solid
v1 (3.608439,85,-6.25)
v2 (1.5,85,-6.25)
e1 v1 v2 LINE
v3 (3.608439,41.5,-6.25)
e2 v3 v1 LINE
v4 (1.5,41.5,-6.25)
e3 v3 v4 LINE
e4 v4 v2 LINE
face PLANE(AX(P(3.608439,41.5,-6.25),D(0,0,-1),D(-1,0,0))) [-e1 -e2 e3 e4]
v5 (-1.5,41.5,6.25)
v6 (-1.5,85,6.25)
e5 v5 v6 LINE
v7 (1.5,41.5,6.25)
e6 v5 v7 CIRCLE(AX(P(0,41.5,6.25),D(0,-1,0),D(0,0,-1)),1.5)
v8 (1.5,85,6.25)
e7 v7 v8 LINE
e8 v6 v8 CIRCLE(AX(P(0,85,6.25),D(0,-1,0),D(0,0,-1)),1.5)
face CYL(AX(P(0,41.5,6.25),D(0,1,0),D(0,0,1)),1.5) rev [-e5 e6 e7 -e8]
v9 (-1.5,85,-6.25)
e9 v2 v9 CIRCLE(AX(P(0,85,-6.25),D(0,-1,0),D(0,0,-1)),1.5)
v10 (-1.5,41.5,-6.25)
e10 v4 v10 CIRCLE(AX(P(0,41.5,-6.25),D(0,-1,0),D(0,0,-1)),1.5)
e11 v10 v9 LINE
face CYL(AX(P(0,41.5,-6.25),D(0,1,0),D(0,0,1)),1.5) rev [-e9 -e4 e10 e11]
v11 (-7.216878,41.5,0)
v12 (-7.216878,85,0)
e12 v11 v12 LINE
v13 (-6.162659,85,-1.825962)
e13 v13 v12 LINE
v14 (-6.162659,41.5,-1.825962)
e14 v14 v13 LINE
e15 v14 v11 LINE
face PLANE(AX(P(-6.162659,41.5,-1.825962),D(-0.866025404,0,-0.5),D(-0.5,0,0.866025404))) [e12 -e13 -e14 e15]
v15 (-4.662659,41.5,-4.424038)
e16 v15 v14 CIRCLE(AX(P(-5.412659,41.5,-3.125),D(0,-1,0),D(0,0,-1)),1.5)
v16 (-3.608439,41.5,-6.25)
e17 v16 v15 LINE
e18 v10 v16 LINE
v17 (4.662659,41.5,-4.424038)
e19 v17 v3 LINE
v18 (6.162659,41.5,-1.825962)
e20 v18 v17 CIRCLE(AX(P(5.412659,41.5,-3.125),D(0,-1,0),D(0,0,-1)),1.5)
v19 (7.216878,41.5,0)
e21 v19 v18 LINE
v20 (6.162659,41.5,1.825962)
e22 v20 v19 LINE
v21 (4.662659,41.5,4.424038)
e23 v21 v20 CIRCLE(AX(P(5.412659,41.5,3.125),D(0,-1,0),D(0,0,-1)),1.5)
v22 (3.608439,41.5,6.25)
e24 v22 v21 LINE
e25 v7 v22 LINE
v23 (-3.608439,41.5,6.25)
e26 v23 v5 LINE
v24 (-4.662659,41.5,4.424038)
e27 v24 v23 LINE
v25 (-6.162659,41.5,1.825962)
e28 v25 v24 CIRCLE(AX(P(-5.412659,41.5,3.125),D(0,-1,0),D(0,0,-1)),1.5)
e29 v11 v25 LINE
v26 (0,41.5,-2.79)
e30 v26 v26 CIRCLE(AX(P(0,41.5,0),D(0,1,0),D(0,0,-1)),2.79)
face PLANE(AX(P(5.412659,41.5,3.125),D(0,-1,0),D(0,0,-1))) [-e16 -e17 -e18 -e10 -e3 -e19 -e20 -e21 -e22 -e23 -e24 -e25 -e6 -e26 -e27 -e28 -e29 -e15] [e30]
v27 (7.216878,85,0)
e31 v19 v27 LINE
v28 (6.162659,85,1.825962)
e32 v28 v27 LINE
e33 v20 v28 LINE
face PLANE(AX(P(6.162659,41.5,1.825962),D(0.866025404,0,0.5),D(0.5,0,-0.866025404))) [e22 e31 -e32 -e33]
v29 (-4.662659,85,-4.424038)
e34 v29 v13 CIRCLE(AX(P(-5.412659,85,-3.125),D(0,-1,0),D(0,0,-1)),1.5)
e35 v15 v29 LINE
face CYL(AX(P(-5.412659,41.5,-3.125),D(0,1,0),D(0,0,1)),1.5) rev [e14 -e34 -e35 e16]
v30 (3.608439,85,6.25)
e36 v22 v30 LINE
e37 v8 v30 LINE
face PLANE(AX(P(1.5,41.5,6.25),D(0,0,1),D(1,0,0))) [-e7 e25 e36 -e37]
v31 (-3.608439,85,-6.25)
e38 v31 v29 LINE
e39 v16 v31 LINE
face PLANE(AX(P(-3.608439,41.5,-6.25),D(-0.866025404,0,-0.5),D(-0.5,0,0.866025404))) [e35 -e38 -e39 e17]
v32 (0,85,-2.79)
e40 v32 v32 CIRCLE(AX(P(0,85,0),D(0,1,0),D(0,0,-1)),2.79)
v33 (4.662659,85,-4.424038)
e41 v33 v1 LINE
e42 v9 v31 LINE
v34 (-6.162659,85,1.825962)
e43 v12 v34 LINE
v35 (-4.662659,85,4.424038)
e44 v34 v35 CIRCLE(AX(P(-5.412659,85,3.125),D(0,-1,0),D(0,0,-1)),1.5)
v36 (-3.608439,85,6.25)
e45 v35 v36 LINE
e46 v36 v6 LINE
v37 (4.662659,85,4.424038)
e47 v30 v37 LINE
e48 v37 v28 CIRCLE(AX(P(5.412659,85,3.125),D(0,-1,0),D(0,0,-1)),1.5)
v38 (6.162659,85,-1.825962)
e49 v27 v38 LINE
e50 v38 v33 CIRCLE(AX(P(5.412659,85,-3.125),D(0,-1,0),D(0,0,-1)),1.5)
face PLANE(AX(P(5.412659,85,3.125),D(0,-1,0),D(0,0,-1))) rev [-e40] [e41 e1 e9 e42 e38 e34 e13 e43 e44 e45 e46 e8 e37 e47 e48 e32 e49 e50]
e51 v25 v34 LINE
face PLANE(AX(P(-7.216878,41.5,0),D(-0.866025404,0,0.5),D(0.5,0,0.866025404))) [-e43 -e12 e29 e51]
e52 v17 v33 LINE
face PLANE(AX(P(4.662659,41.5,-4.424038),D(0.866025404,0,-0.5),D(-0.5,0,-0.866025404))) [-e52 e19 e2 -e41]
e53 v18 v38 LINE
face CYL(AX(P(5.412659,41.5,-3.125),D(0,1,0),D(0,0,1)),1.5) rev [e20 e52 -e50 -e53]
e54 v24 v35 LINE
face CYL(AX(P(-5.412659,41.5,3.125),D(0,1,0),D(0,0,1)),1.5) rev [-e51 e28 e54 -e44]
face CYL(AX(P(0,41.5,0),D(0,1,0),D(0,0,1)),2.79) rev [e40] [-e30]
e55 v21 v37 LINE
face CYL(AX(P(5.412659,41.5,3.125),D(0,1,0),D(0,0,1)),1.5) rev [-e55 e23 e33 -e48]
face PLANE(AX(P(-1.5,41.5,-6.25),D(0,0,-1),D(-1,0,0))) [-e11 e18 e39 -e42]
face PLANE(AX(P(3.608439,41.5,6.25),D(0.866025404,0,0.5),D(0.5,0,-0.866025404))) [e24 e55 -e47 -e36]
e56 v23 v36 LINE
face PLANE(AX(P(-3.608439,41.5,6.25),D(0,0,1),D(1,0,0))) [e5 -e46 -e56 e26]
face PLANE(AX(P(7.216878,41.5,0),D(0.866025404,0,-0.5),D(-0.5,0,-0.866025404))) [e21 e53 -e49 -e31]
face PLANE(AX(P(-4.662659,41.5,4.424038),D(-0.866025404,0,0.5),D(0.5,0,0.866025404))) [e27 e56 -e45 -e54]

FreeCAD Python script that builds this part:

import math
import FreeCAD as App
import Part
import Sketcher

V = App.Vector
Q = App.Units.Quantity

doc = App.newDocument("Part")
body = doc.addObject("PartDesign::Body", "Body")

# Sketch on XZ plane
sketch1 = body.newObject("Sketcher::SketchObject", "Sketch")
sketch1.AttachmentSupport = (doc.getObject("XZ_Plane"), [""])
sketch1.MapMode = "FlatFace"
sketch1.AttachmentOffset = App.Placement(V(0, 0, -85), App.Rotation())
sketch1.addGeometry([
    Part.LineSegment(V(6.162659, 1.825962, 0), V(7.216878, 0, 0)),  # 0
    Part.LineSegment(V(7.216878, 0, 0), V(6.162659, -1.825962, 0)),  # 1
    Part.ArcOfCircle(Part.Circle(V(5.412659, -3.125, 0), V(0, 0, 1), 1.5), math.radians(60), math.radians(240)),  # 2
    Part.LineSegment(V(4.662659, -4.424038, 0), V(3.608439, -6.25, 0)),  # 3
    Part.LineSegment(V(3.608439, -6.25, 0), V(1.5, -6.25, 0)),  # 4
    Part.ArcOfCircle(Part.Circle(V(0, -6.25, 0), V(0, 0, 1), 1.5), math.radians(0), math.radians(180)),  # 5
    Part.LineSegment(V(-1.5, -6.25, 0), V(-3.608439, -6.25, 0)),  # 6
    Part.LineSegment(V(-3.608439, -6.25, 0), V(-4.662659, -4.424038, 0)),  # 7
    Part.ArcOfCircle(Part.Circle(V(-5.412659, -3.125, 0), V(0, 0, 1), 1.5), math.radians(-60), math.radians(120)),  # 8
    Part.LineSegment(V(-6.162659, -1.825962, 0), V(-7.216878, 0, 0)),  # 9
    Part.LineSegment(V(-7.216878, 0, 0), V(-6.162659, 1.825962, 0)),  # 10
    Part.ArcOfCircle(Part.Circle(V(-5.412659, 3.125, 0), V(0, 0, 1), 1.5), math.radians(-120), math.radians(60)),  # 11
    Part.LineSegment(V(-4.662659, 4.424038, 0), V(-3.608439, 6.25, 0)),  # 12
    Part.LineSegment(V(-3.608439, 6.25, 0), V(-1.5, 6.25, 0)),  # 13
    Part.ArcOfCircle(Part.Circle(V(0, 6.25, 0), V(0, 0, 1), 1.5), math.radians(180), math.radians(360)),  # 14
    Part.LineSegment(V(1.5, 6.25, 0), V(3.608439, 6.25, 0)),  # 15
    Part.LineSegment(V(3.608439, 6.25, 0), V(4.662659, 4.424038, 0)),  # 16
    Part.ArcOfCircle(Part.Circle(V(5.412659, 3.125, 0), V(0, 0, 1), 1.5), math.radians(120), math.radians(300)),  # 17
    Part.Circle(V(0, 0, 0), V(0, 0, 1), 2.79),  # 18
], False)
sketch1.addConstraint([
    Sketcher.Constraint("Coincident", 0, 2, 1, 1),
    Sketcher.Constraint("Coincident", 1, 2, 2, 1),
    Sketcher.Constraint("Coincident", 2, 2, 3, 1),
    Sketcher.Constraint("Coincident", 3, 2, 4, 1),
    Sketcher.Constraint("Coincident", 4, 2, 5, 1),
    Sketcher.Constraint("Coincident", 5, 2, 6, 1),
    Sketcher.Constraint("Coincident", 6, 2, 7, 1),
    Sketcher.Constraint("Coincident", 7, 2, 8, 1),
    Sketcher.Constraint("Coincident", 8, 2, 9, 1),
    Sketcher.Constraint("Coincident", 9, 2, 10, 1),
    Sketcher.Constraint("Coincident", 10, 2, 11, 1),
    Sketcher.Constraint("Coincident", 11, 2, 12, 1),
    Sketcher.Constraint("Coincident", 12, 2, 13, 1),
    Sketcher.Constraint("Coincident", 13, 2, 14, 1),
    Sketcher.Constraint("Coincident", 14, 2, 15, 1),
    Sketcher.Constraint("Coincident", 15, 2, 16, 1),
    Sketcher.Constraint("Coincident", 16, 2, 17, 1),
    Sketcher.Constraint("Coincident", 17, 2, 0, 1),
    Sketcher.Constraint("Horizontal", 4),
    Sketcher.Constraint("Horizontal", 6),
    Sketcher.Constraint("Horizontal", 13),
    Sketcher.Constraint("Horizontal", 15),
    Sketcher.Constraint("Coincident", 18, 3, -1, 1),
    Sketcher.Constraint("Equal", 2, 5),
    Sketcher.Constraint("Equal", 5, 8),
    Sketcher.Constraint("Equal", 8, 11),
    Sketcher.Constraint("Equal", 11, 14),
    Sketcher.Constraint("Equal", 14, 17),
    Sketcher.Constraint("Symmetric", 2, 3, 11, 3, -1, 1),
    Sketcher.Constraint("Symmetric", 5, 3, 14, 3, -1, 1),
    Sketcher.Constraint("Symmetric", 8, 3, 17, 3, -1, 1),
    Sketcher.Constraint("Symmetric", 0, 2, 9, 2, -1, 1),
    Sketcher.Constraint("Symmetric", 3, 2, 12, 2, -1, 1),
    Sketcher.Constraint("Symmetric", 6, 2, 15, 2, -1, 1),
    Sketcher.Constraint("Symmetric", 2, 3, 8, 3, -2),
    Sketcher.Constraint("Symmetric", 4, 2, 5, 2, -2),
    Sketcher.Constraint("PointOnObject", 0, 2, -1),
    Sketcher.Constraint("Parallel", 1, 3),
    Sketcher.Constraint("Parallel", 0, 7),
    Sketcher.Constraint("Parallel", 7, 9),
    Sketcher.Constraint("Parallel", 3, 10),
    Sketcher.Constraint("Parallel", 10, 12),
    Sketcher.Constraint("Parallel", 9, 16),
    Sketcher.Constraint("Horizontal", 5, 3, 3, 2),
    Sketcher.Constraint("Horizontal", 2, 2, 7, 2),
    Sketcher.Constraint("Horizontal", 1, 2, 8, 2),
    Sketcher.Constraint("Equal", 1, 3),
    Sketcher.Constraint("Radius", 2, Q("1.5 mm")),
    Sketcher.Constraint("Diameter", 18, Q("5.58 mm")),
    Sketcher.Constraint("Angle", 0, Q("-60 deg")),
    Sketcher.Constraint("DistanceY", 5, 3, 14, 3, Q("12.5 mm")),
    Sketcher.Constraint("DistanceX", 2, 2, 1, 2, Q("1.5 mm")),
    Sketcher.Constraint("DistanceY", 8, 3, 11, 3, Q("6.25 mm")),
    Sketcher.Constraint("DistanceX", 4, 2, 4, 1, Q("2.108439 mm")),
])
pad1 = body.newObject("PartDesign::Pad", "Pad")
pad1.Profile = sketch1
pad1.Length = 43.5

doc.recompute()
